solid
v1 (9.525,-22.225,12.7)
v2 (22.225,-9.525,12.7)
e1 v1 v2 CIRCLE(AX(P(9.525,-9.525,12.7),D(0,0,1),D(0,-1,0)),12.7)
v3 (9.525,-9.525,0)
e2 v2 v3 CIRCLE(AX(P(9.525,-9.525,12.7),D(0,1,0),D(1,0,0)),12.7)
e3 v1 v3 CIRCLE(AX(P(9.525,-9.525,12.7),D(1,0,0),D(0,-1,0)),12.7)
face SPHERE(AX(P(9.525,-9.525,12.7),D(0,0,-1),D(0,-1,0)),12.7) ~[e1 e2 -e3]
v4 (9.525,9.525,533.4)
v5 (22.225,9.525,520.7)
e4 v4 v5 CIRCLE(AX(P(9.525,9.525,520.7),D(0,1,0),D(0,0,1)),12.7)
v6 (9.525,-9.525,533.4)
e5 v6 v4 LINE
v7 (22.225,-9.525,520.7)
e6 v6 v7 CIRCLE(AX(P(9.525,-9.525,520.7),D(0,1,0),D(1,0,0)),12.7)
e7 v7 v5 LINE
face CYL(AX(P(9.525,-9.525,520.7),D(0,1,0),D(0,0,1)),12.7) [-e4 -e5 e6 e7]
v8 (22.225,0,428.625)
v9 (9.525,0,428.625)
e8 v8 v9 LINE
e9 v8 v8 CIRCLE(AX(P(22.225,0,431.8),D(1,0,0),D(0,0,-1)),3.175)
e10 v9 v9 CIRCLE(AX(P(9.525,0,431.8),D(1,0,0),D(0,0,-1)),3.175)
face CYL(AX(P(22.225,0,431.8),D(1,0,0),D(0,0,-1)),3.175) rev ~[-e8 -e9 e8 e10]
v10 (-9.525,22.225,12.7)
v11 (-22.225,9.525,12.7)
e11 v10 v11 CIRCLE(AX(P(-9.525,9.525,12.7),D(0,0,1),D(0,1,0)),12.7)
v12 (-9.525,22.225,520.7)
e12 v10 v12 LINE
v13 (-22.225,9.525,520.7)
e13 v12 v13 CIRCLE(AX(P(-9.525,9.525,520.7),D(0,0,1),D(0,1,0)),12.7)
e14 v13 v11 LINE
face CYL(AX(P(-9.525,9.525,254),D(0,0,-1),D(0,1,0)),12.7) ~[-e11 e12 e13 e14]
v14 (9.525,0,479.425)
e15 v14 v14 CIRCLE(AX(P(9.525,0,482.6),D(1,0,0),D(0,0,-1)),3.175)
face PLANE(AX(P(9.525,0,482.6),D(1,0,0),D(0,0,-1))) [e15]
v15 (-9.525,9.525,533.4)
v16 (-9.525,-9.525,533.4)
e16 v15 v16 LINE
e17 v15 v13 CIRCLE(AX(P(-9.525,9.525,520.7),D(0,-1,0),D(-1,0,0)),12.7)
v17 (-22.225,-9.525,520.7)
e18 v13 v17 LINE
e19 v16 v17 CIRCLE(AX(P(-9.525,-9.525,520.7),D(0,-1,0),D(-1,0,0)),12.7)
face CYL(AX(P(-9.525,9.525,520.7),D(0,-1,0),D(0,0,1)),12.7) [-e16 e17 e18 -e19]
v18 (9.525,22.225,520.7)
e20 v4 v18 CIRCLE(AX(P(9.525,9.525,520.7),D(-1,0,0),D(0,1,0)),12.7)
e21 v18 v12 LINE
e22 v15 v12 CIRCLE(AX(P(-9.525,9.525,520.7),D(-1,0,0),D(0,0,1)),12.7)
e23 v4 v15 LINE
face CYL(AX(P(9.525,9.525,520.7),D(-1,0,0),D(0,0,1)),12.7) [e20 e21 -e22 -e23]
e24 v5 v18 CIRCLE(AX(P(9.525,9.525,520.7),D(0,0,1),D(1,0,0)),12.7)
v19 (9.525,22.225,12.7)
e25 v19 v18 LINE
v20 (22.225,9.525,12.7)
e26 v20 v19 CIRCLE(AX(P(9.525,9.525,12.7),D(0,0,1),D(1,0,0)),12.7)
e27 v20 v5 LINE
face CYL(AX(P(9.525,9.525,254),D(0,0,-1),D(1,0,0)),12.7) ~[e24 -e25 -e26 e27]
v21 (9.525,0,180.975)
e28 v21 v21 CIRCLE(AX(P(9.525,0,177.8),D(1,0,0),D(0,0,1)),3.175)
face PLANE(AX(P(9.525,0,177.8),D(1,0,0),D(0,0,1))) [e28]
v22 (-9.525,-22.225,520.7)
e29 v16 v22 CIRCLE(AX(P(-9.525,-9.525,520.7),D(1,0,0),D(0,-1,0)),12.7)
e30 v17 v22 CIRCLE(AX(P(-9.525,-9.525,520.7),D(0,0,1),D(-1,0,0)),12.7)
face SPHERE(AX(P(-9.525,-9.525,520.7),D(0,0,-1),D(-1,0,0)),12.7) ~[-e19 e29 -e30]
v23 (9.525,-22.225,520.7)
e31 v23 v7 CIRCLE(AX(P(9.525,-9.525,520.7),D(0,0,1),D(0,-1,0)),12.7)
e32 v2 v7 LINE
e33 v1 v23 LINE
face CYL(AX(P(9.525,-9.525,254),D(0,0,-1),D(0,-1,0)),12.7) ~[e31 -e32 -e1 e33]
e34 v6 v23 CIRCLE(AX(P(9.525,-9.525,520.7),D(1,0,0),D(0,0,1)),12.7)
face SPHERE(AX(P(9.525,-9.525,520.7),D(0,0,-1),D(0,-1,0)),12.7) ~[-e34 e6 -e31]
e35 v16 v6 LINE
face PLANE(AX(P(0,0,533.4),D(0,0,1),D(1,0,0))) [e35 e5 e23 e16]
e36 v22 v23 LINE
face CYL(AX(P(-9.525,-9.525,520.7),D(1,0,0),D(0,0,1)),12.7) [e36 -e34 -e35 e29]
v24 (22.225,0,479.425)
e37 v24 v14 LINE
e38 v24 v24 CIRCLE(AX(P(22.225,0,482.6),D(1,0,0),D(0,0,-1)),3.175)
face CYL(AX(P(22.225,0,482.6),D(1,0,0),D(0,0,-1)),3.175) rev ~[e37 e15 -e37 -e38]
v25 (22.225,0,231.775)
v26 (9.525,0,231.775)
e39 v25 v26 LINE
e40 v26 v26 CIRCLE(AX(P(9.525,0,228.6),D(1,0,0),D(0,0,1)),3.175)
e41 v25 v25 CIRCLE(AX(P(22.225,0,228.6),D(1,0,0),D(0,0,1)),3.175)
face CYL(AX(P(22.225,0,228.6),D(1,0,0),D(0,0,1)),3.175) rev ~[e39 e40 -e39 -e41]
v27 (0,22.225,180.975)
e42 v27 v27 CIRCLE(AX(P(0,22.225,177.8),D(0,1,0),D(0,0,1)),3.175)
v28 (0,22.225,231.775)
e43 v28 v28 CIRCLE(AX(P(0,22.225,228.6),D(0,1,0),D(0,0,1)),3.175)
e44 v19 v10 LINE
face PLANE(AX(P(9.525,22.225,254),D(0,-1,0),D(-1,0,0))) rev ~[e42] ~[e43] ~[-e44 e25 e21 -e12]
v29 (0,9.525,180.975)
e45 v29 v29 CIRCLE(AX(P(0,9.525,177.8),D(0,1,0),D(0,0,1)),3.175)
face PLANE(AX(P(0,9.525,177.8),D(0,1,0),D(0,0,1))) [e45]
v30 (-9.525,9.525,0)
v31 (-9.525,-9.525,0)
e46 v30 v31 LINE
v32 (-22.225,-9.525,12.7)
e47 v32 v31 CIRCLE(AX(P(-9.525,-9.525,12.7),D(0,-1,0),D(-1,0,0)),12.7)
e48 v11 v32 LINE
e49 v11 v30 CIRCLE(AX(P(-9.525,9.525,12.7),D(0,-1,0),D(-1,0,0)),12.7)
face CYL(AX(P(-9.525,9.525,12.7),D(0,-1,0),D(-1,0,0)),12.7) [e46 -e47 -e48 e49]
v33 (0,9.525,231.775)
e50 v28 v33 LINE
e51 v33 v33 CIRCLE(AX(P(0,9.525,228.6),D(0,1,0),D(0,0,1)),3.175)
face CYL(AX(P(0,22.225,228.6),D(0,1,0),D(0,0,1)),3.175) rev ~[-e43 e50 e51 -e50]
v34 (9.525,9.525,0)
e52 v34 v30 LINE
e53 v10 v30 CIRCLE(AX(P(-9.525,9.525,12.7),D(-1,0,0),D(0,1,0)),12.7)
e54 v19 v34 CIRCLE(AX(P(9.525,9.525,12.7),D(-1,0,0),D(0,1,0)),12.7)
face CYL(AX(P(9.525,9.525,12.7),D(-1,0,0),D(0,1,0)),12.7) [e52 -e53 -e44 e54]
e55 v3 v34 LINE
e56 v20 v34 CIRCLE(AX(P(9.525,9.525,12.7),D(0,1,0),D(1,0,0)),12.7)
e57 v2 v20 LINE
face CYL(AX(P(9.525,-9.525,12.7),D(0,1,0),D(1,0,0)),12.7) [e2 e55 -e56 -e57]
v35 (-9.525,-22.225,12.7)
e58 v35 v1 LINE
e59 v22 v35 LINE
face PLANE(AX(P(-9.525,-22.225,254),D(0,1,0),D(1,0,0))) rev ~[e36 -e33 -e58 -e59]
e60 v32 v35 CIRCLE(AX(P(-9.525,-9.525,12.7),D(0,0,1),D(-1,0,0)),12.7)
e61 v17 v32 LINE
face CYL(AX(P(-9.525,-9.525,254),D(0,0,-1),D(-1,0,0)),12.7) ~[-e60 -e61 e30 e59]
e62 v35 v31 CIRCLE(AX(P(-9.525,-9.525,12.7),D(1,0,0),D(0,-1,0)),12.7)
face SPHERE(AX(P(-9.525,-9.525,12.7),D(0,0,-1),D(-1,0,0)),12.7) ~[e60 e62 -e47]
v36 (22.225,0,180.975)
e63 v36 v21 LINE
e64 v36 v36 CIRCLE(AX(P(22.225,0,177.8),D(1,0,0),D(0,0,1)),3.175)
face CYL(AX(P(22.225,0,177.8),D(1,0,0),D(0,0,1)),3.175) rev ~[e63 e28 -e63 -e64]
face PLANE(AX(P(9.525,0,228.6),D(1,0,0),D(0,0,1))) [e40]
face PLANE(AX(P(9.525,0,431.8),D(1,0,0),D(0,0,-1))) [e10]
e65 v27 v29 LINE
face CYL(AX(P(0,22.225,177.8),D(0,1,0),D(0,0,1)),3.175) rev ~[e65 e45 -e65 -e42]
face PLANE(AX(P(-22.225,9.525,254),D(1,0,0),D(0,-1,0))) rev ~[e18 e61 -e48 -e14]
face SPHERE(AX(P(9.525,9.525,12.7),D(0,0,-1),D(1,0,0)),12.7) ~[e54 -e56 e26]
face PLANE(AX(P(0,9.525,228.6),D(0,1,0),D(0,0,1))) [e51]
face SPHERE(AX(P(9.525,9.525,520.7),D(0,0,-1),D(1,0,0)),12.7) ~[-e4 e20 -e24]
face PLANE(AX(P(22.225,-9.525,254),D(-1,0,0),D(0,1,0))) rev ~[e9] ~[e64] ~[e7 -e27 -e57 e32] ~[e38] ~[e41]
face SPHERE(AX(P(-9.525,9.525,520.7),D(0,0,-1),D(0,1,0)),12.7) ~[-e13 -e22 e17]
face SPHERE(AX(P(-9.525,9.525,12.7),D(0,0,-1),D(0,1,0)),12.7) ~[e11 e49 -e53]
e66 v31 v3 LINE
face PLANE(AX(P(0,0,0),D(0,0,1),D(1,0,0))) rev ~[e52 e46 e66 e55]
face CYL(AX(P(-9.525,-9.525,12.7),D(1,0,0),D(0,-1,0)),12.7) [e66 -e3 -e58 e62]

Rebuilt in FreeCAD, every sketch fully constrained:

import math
import FreeCAD as App
import Part
import Sketcher
Q = App.Units.Quantity


def edges_at(feature, points):
    """Names of the edges that pass closest to the given points."""
    edges = feature.Shape.Edges
    near = lambda p: min(range(len(edges)), key=lambda i: edges[i].distToShape(Part.Vertex(*p))[0])
    return sorted({f"Edge{near(p) + 1}" for p in points})

doc = App.newDocument("Part")
body = doc.addObject("PartDesign::Body", "Body")

# Sketch on XY plane
sketch1 = body.newObject("Sketcher::SketchObject", "Sketch")
sketch1.AttachmentSupport = (doc.getObject("XY_Plane"), [""])
sketch1.MapMode = "FlatFace"
sketch1.addGeometry(Part.LineSegment(App.Vector(-10, -22, 0), App.Vector(10, -22, 0)), False)
sketch1.addGeometry(Part.ArcOfCircle(Part.Circle(App.Vector(10, -10, 0), App.Vector(0, 0, 1), 13), math.radians(-90), math.radians(0)), False)
sketch1.addGeometry(Part.LineSegment(App.Vector(22, -10, 0), App.Vector(22, 10, 0)), False)
sketch1.addGeometry(Part.ArcOfCircle(Part.Circle(App.Vector(10, 10, 0), App.Vector(0, 0, 1), 13), math.radians(0), math.radians(90)), False)
sketch1.addGeometry(Part.LineSegment(App.Vector(10, 22, 0), App.Vector(-10, 22, 0)), False)
sketch1.addGeometry(Part.ArcOfCircle(Part.Circle(App.Vector(-10, 10, 0), App.Vector(0, 0, 1), 13), math.radians(90), math.radians(180)), False)
sketch1.addGeometry(Part.LineSegment(App.Vector(-22, 10, 0), App.Vector(-22, -10, 0)), False)
sketch1.addGeometry(Part.ArcOfCircle(Part.Circle(App.Vector(-10, -10, 0), App.Vector(0, 0, 1), 13), math.radians(180), math.radians(270)), False)
sketch1.addConstraint(Sketcher.Constraint("Tangent", 0, 2, 1, 1))
sketch1.addConstraint(Sketcher.Constraint("Tangent", 1, 2, 2, 1))
sketch1.addConstraint(Sketcher.Constraint("Tangent", 2, 2, 3, 1))
sketch1.addConstraint(Sketcher.Constraint("Tangent", 3, 2, 4, 1))
sketch1.addConstraint(Sketcher.Constraint("Tangent", 4, 2, 5, 1))
sketch1.addConstraint(Sketcher.Constraint("Tangent", 5, 2, 6, 1))
sketch1.addConstraint(Sketcher.Constraint("Tangent", 6, 2, 7, 1))
sketch1.addConstraint(Sketcher.Constraint("Tangent", 7, 2, 0, 1))
sketch1.addConstraint(Sketcher.Constraint("Horizontal", 0))
sketch1.addConstraint(Sketcher.Constraint("Vertical", 2))
sketch1.addConstraint(Sketcher.Constraint("Horizontal", 4))
sketch1.addConstraint(Sketcher.Constraint("Vertical", 6))
sketch1.addConstraint(Sketcher.Constraint("Equal", 1, 3))
sketch1.addConstraint(Sketcher.Constraint("Equal", 3, 5))
sketch1.addConstraint(Sketcher.Constraint("Equal", 5, 7))
sketch1.addConstraint(Sketcher.Constraint("Symmetric", 1, 3, 5, 3, -1, 1))
sketch1.addConstraint(Sketcher.Constraint("Equal", 4, 2))
sketch1.addConstraint(Sketcher.Constraint("Radius", 1, Q("0.5 in")))
sketch1.addConstraint(Sketcher.Constraint("DistanceX", 0, 1, 0, 2, Q("0.75 in")))
pad1 = body.newObject("PartDesign::Pad", "Pad")
pad1.Profile = sketch1
pad1.Length = Q("10 in")
doc.recompute()

fillet = body.newObject("PartDesign::Fillet", "Fillet")
fillet.Base = (pad1, edges_at(pad1, [
    (0, -22.225, 0),
    (-18.505, -18.505, 0),
    (-22.225, 0, 0),
    (-18.505, 18.505, 0),
    (0, 22.225, 0),
    (18.505, 18.505, 0),
    (22.225, 0, 0),
    (18.505, -18.505, 0),
]))
fillet.Radius = Q("0.5 in")

# Sketch on XZ plane
sketch2 = body.newObject("Sketcher::SketchObject", "Sketch001")
sketch2.AttachmentSupport = (doc.getObject("XZ_Plane"), [""])
sketch2.MapMode = "FlatFace"
sketch2.AttachmentOffset = App.Placement(App.Vector(0, 0, -0.875 * 25.4), App.Rotation())
sketch2.addGeometry(Part.Circle(App.Vector(0, 177.8, 0), App.Vector(0, 0, 1), 3.2), False)
sketch2.addGeometry(Part.Circle(App.Vector(0, 228.6, 0), App.Vector(0, 0, 1), 3.2), False)
sketch2.addConstraint(Sketcher.Constraint("Equal", 0, 1))
sketch2.addConstraint(Sketcher.Constraint("PointOnObject", 0, 3, -2))
sketch2.addConstraint(Sketcher.Constraint("PointOnObject", 1, 3, -2))
sketch2.addConstraint(Sketcher.Constraint("Diameter", 0, Q("0.25 in")))
sketch2.addConstraint(Sketcher.Constraint("DistanceY", -1, 1, 0, 3, Q("7 in")))
sketch2.addConstraint(Sketcher.Constraint("DistanceY", -1, 1, 1, 3, Q("9 in")))
pocket1 = body.newObject("PartDesign::Pocket", "Pocket")
pocket1.Profile = sketch2
pocket1.Length = Q("0.5 in")
pocket1.Reversed = True
doc.recompute()

polarpattern = body.newObject("PartDesign::PolarPattern", "PolarPattern")
polarpattern.Originals = [pocket1]
polarpattern.Axis = (doc.getObject("Z_Axis"), [""])
polarpattern.Angle = 90
polarpattern.Occurrences = 2
polarpattern.Reversed = True
body.Tip = polarpattern

# Sketch on XY plane
sketch3 = body.newObject("Sketcher::SketchObject", "Sketch002")
sketch3.AttachmentSupport = (doc.getObject("XY_Plane"), [""])
sketch3.MapMode = "FlatFace"
sketch3.AttachmentOffset = App.Placement(App.Vector(0, 0, 10 * 25.4), App.Rotation())
sketch3.addGeometry(Part.LineSegment(App.Vector(-10, -22, 0), App.Vector(10, -22, 0)), False)
sketch3.addGeometry(Part.ArcOfCircle(Part.Circle(App.Vector(10, -10, 0), App.Vector(0, 0, 1), 13), math.radians(-90), math.radians(0)), False)
sketch3.addGeometry(Part.LineSegment(App.Vector(22, -10, 0), App.Vector(22, 10, 0)), False)
sketch3.addGeometry(Part.ArcOfCircle(Part.Circle(App.Vector(10, 10, 0), App.Vector(0, 0, 1), 13), math.radians(0), math.radians(90)), False)
sketch3.addGeometry(Part.LineSegment(App.Vector(10, 22, 0), App.Vector(-10, 22, 0)), False)
sketch3.addGeometry(Part.ArcOfCircle(Part.Circle(App.Vector(-10, 10, 0), App.Vector(0, 0, 1), 13), math.radians(90), math.radians(180)), False)
sketch3.addGeometry(Part.LineSegment(App.Vector(-22, 10, 0), App.Vector(-22, -10, 0)), False)
sketch3.addGeometry(Part.ArcOfCircle(Part.Circle(App.Vector(-10, -10, 0), App.Vector(0, 0, 1), 13), math.radians(180), math.radians(270)), False)
sketch3.addConstraint(Sketcher.Constraint("Tangent", 0, 2, 1, 1))
sketch3.addConstraint(Sketcher.Constraint("Tangent", 1, 2, 2, 1))
sketch3.addConstraint(Sketcher.Constraint("Tangent", 2, 2, 3, 1))
sketch3.addConstraint(Sketcher.Constraint("Tangent", 3, 2, 4, 1))
sketch3.addConstraint(Sketcher.Constraint("Tangent", 4, 2, 5, 1))
sketch3.addConstraint(Sketcher.Constraint("Tangent", 5, 2, 6, 1))
sketch3.addConstraint(Sketcher.Constraint("Tangent", 6, 2, 7, 1))
sketch3.addConstraint(Sketcher.Constraint("Tangent", 7, 2, 0, 1))
sketch3.addConstraint(Sketcher.Constraint("Horizontal", 0))
sketch3.addConstraint(Sketcher.Constraint("Vertical", 2))
sketch3.addConstraint(Sketcher.Constraint("Horizontal", 4))
sketch3.addConstraint(Sketcher.Constraint("Vertical", 6))
sketch3.addConstraint(Sketcher.Constraint("Equal", 1, 3))
sketch3.addConstraint(Sketcher.Constraint("Equal", 3, 5))
sketch3.addConstraint(Sketcher.Constraint("Equal", 5, 7))
sketch3.addConstraint(Sketcher.Constraint("Symmetric", 1, 3, 5, 3, -1, 1))
sketch3.addConstraint(Sketcher.Constraint("Equal", 4, 2))
sketch3.addConstraint(Sketcher.Constraint("Radius", 1, Q("0.5 in")))
sketch3.addConstraint(Sketcher.Constraint("DistanceX", 0, 1, 0, 2, Q("0.75 in")))
pad2 = body.newObject("PartDesign::Pad", "Pad001")
pad2.Profile = sketch3
pad2.Length = Q("11 in")
doc.recompute()

fillet2 = body.newObject("PartDesign::Fillet", "Fillet001")
fillet2.Base = (pad2, edges_at(pad2, [
    (-18.505, -18.505, 533.4),
    (0, -22.225, 533.4),
    (18.505, -18.505, 533.4),
    (22.225, 0, 533.4),
    (18.505, 18.505, 533.4),
    (0, 22.225, 533.4),
    (-18.505, 18.505, 533.4),
    (-22.225, 0, 533.4),
]))
fillet2.Radius = Q("0.5 in")

# Sketch on YZ plane
sketch4 = body.newObject("Sketcher::SketchObject", "Sketch003")
sketch4.AttachmentSupport = (doc.getObject("YZ_Plane"), [""])
sketch4.MapMode = "FlatFace"
sketch4.AttachmentOffset = App.Placement(App.Vector(0, 0, 0.875 * 25.4), App.Rotation())
sketch4.addGeometry(Part.Circle(App.Vector(0, 431.8, 0), App.Vector(0, 0, 1), 3.2), False)
sketch4.addGeometry(Part.Circle(App.Vector(0, 482.6, 0), App.Vector(0, 0, 1), 3.2), False)
sketch4.addConstraint(Sketcher.Constraint("Equal", 0, 1))
sketch4.addConstraint(Sketcher.Constraint("PointOnObject", 0, 3, -2))
sketch4.addConstraint(Sketcher.Constraint("PointOnObject", 1, 3, -2))
sketch4.addConstraint(Sketcher.Constraint("Diameter", 0, Q("0.25 in")))
sketch4.addConstraint(Sketcher.Constraint("DistanceY", -1, 1, 0, 3, Q("17 in")))
sketch4.addConstraint(Sketcher.Constraint("DistanceY", -1, 1, 1, 3, Q("19 in")))
pocket2 = body.newObject("PartDesign::Pocket", "Pocket001")
pocket2.Profile = sketch4
pocket2.Length = Q("0.5 in")

doc.recompute()
